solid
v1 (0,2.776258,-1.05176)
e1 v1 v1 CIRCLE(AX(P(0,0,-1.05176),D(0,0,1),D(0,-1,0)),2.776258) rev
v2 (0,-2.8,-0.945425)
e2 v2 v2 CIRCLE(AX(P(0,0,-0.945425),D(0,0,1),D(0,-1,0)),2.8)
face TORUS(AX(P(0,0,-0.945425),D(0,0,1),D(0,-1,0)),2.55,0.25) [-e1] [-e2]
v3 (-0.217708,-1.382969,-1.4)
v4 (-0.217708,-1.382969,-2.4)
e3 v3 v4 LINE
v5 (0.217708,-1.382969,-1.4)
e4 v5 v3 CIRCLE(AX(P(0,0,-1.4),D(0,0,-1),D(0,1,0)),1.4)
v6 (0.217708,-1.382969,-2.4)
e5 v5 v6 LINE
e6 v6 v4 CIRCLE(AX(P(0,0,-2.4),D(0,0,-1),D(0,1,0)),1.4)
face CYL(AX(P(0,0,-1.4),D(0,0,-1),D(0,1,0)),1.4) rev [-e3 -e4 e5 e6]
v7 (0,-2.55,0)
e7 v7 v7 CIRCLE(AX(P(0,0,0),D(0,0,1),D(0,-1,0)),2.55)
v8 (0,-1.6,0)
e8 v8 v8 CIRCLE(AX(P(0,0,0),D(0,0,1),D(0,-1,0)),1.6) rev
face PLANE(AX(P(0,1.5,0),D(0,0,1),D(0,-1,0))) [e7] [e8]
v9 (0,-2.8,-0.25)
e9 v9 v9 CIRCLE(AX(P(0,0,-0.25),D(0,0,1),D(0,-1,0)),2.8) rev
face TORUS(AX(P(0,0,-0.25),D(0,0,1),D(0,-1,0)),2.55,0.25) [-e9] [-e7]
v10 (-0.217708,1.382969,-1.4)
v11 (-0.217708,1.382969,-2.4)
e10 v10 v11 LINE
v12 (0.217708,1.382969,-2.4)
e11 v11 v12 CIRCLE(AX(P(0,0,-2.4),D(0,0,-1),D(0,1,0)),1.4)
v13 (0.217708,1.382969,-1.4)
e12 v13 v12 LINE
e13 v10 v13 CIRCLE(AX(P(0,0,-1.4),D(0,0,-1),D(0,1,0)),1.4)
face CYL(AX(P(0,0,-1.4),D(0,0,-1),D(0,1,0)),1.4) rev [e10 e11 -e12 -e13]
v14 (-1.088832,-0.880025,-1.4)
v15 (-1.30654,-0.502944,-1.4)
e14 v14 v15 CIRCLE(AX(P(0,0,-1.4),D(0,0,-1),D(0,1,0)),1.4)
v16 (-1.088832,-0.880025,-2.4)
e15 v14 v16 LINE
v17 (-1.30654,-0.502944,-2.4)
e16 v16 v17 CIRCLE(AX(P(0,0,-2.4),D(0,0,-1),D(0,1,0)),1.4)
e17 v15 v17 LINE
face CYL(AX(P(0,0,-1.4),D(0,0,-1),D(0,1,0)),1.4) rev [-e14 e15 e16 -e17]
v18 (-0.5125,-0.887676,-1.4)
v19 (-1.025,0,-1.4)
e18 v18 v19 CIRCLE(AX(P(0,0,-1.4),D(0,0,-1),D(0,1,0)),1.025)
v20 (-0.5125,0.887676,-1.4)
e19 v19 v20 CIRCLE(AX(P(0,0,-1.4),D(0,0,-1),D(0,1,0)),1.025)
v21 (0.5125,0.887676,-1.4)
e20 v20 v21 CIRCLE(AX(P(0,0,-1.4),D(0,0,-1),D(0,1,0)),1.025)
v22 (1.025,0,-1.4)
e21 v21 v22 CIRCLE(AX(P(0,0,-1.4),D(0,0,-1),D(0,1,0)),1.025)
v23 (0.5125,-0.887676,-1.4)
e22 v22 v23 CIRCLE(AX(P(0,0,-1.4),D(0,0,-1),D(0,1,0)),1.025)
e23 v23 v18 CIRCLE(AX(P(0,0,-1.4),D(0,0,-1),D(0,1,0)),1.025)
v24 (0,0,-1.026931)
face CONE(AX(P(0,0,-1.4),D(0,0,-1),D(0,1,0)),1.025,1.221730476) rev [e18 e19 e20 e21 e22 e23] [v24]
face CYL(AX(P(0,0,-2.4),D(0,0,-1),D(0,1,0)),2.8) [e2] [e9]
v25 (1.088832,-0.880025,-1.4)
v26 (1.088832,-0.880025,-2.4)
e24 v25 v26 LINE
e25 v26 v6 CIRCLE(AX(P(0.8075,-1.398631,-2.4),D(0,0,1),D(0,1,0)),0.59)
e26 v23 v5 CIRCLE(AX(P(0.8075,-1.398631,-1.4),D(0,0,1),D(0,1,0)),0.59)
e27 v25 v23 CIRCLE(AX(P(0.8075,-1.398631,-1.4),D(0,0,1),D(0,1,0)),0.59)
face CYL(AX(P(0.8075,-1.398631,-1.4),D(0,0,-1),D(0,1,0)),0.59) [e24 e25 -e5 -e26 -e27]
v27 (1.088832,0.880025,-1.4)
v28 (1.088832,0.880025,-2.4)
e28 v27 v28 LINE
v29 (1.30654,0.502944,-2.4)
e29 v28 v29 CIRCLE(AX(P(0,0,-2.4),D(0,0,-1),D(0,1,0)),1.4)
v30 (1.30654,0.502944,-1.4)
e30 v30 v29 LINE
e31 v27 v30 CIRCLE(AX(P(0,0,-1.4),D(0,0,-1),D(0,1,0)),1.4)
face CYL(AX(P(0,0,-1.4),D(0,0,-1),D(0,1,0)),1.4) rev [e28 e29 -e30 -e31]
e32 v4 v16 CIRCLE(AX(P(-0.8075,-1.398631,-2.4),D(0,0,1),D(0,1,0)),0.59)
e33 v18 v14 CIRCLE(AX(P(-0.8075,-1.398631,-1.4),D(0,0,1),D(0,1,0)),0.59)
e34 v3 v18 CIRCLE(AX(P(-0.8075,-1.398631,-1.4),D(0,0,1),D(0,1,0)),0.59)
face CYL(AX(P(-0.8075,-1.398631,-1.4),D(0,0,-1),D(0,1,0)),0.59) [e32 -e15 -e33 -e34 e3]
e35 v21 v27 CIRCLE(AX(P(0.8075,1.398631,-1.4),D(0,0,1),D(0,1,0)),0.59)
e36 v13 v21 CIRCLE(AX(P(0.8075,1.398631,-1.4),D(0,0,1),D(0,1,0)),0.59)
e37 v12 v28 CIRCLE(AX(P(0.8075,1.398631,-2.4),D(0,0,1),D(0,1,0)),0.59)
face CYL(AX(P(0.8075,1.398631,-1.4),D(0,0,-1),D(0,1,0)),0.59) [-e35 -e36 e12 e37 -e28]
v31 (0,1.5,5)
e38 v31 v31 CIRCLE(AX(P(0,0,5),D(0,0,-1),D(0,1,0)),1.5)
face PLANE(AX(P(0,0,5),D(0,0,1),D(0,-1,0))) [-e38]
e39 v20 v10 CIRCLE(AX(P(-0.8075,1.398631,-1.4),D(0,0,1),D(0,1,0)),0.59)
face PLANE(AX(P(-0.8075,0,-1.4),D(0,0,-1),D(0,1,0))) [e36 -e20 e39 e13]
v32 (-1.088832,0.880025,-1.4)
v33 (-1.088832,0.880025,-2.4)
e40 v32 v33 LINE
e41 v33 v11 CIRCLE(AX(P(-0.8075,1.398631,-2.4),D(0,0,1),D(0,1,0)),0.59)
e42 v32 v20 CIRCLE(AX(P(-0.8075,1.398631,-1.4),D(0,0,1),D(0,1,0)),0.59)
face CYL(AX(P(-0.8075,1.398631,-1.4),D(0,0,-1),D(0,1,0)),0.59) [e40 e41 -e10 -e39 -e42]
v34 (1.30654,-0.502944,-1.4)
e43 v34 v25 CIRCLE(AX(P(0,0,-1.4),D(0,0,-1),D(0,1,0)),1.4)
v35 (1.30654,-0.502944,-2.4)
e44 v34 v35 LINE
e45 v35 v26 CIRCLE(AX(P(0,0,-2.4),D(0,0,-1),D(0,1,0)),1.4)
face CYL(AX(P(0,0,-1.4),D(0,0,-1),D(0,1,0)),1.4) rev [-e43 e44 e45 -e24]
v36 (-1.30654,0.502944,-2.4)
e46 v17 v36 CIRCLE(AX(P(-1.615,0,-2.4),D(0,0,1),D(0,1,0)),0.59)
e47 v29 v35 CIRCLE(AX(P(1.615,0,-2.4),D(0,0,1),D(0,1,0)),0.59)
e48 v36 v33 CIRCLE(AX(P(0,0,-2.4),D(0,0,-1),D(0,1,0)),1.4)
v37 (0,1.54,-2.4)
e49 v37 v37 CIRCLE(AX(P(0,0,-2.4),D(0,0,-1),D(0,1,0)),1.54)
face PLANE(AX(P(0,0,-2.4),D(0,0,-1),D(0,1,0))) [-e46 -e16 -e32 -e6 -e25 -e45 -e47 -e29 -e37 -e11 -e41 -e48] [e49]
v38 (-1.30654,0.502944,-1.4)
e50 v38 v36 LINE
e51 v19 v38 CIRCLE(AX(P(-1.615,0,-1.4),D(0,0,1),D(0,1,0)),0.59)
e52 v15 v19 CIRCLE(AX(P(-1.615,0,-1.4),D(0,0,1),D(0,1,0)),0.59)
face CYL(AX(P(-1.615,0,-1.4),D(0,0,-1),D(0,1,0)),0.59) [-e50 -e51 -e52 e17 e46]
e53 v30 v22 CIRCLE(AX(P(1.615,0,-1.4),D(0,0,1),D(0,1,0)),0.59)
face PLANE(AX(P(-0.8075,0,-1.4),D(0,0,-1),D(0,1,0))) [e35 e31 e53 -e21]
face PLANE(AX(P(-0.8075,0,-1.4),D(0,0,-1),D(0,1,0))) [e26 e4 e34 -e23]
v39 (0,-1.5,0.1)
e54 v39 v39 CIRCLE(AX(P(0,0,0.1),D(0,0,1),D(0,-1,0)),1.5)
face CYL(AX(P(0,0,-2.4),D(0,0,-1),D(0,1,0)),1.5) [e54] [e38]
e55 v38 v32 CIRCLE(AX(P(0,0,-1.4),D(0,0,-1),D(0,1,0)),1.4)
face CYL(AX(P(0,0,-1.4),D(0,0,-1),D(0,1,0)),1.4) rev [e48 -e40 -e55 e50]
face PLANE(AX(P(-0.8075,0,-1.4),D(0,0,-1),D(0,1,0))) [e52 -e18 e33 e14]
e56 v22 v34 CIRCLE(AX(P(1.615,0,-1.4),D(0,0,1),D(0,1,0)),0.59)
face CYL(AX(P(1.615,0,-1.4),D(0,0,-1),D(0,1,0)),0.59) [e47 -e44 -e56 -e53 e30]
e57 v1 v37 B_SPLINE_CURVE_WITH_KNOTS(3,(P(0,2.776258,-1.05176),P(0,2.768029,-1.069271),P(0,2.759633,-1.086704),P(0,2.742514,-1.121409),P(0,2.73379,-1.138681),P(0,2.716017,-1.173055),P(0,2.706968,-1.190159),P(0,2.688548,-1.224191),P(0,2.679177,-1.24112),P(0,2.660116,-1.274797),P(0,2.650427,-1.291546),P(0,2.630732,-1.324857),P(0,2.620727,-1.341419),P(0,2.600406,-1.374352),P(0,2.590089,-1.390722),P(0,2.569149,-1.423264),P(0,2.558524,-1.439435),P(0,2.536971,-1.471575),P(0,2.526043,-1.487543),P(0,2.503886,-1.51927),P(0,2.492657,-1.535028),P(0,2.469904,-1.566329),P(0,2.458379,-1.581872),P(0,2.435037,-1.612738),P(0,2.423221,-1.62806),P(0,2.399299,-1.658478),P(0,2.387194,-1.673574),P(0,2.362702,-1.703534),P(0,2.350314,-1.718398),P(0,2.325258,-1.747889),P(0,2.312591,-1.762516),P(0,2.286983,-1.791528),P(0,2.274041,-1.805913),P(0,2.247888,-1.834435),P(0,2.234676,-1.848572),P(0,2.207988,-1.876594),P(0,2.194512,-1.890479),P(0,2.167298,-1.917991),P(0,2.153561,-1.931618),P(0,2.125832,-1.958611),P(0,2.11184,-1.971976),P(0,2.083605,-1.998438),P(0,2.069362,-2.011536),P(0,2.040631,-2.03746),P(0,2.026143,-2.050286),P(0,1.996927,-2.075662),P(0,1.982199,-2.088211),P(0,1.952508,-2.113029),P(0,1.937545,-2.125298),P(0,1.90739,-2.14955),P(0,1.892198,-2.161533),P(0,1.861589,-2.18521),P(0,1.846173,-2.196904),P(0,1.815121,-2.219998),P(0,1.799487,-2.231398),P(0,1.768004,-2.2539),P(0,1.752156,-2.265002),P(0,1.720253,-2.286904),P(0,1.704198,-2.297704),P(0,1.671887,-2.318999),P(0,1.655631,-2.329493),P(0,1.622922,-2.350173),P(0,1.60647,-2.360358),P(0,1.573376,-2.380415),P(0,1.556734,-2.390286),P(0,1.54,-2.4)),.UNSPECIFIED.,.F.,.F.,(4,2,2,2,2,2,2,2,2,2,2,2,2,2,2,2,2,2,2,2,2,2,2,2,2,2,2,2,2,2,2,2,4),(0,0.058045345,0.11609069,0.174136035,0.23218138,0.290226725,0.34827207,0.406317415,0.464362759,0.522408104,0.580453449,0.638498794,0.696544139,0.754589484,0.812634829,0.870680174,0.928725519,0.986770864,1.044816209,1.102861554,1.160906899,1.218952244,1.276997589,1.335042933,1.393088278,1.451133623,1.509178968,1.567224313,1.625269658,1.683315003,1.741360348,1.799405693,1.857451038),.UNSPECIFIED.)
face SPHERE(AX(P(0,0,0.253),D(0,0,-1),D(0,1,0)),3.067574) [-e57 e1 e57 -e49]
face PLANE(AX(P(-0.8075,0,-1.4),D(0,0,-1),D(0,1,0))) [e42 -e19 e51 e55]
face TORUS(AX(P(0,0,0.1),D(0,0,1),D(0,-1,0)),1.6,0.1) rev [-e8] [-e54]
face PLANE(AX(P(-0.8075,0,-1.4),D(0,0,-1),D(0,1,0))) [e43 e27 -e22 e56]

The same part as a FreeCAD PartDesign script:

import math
import FreeCAD as App
import Part
import Sketcher
Q = App.Units.Quantity


def edges_at(feature, points):
    """Names of the edges that pass closest to the given points."""
    edges = feature.Shape.Edges
    near = lambda p: min(range(len(edges)), key=lambda i: edges[i].distToShape(Part.Vertex(*p))[0])
    return sorted({f"Edge{near(p) + 1}" for p in points})

doc = App.newDocument("Part")
body = doc.addObject("PartDesign::Body", "Body")

# Sketch on YZ plane
sketch1 = body.newObject("Sketcher::SketchObject", "Sketch")
sketch1.AttachmentSupport = (doc.getObject("YZ_Plane"), [""])
sketch1.MapMode = "FlatFace"
sketch1.addGeometry(Part.LineSegment(App.Vector(1.5, 5, 0), App.Vector(0, 5, 0)), False)
sketch1.addGeometry(Part.LineSegment(App.Vector(0, 5, 0), App.Vector(0, -2.4, 0)), False)
sketch1.addGeometry(Part.LineSegment(App.Vector(0, -2.4, 0), App.Vector(1.5, -2.4, 0)), False)
sketch1.addGeometry(Part.ArcOfCircle(Part.Circle(App.Vector(0, 0.3, 0), App.Vector(0, 0, 1), 3.1), math.radians(-60), math.radians(-24)), False)
sketch1.addGeometry(Part.LineSegment(App.Vector(2.8, -1, 0), App.Vector(2.8, 0, 0)), False)
sketch1.addGeometry(Part.LineSegment(App.Vector(2.8, 0, 0), App.Vector(1.5, 0, 0)), False)
sketch1.addGeometry(Part.LineSegment(App.Vector(1.5, 0, 0), App.Vector(1.5, 5, 0)), False)
sketch1.addConstraint(Sketcher.Constraint("Coincident", 0, 2, 1, 1))
sketch1.addConstraint(Sketcher.Constraint("Coincident", 1, 2, 2, 1))
sketch1.addConstraint(Sketcher.Constraint("Coincident", 2, 2, 3, 1))
sketch1.addConstraint(Sketcher.Constraint("Coincident", 3, 2, 4, 1))
sketch1.addConstraint(Sketcher.Constraint("Coincident", 4, 2, 5, 1))
sketch1.addConstraint(Sketcher.Constraint("Coincident", 5, 2, 6, 1))
sketch1.addConstraint(Sketcher.Constraint("Coincident", 6, 2, 0, 1))
sketch1.addConstraint(Sketcher.Constraint("Horizontal", 0))
sketch1.addConstraint(Sketcher.Constraint("Vertical", 1))
sketch1.addConstraint(Sketcher.Constraint("Horizontal", 2))
sketch1.addConstraint(Sketcher.Constraint("Vertical", 4))
sketch1.addConstraint(Sketcher.Constraint("Horizontal", 5))
sketch1.addConstraint(Sketcher.Constraint("Vertical", 6))
sketch1.addConstraint(Sketcher.Constraint("PointOnObject", 3, 3, -2))
sketch1.addConstraint(Sketcher.Constraint("PointOnObject", 0, 2, -2))
sketch1.addConstraint(Sketcher.Constraint("PointOnObject", 4, 2, -1))
sketch1.addConstraint(Sketcher.Constraint("DistanceY", 4, 1, 4, 2, Q("1 mm")))
sketch1.addConstraint(Sketcher.Constraint("DistanceY", 6, 1, 6, 2, Q("5 mm")))
sketch1.addConstraint(Sketcher.Constraint("DistanceX", 0, 2, 0, 1, Q("1.5 mm")))
sketch1.addConstraint(Sketcher.Constraint("DistanceX", 5, 2, 5, 1, Q("1.3 mm")))
sketch1.addConstraint(Sketcher.Constraint("DistanceY", 1, 2, 1, 1, Q("7.4 mm")))
sketch1.addConstraint(Sketcher.Constraint("DistanceX", 2, 1, 2, 2, Q("1.54 mm")))
revolution = body.newObject("PartDesign::Revolution", "Revolution")
revolution.Profile = sketch1
revolution.ReferenceAxis = (sketch1, ["V_Axis"])
revolution.Angle = 360
doc.recompute()

fillet = body.newObject("PartDesign::Fillet", "Fillet")
fillet.Base = (revolution, edges_at(revolution, [(0, -1.5, 0)]))
fillet.Radius = 0.1
doc.recompute()

fillet2 = body.newObject("PartDesign::Fillet", "Fillet001")
fillet2.Base = (fillet, edges_at(fillet, [(0, -2.8, -1), (0, -2.8, 0)]))
fillet2.Radius = 0.25

# Sketch on XY plane
sketch2 = body.newObject("Sketcher::SketchObject", "Sketch001")
sketch2.AttachmentSupport = (doc.getObject("XY_Plane"), [""])
sketch2.MapMode = "FlatFace"
sketch2.AttachmentOffset = App.Placement(App.Vector(0, 0, -2.4), App.Rotation())
sketch2.addGeometry(Part.Circle(App.Vector(0, 0, 0), App.Vector(0, 0, 1), 1), False)
sketch2.addConstraint(Sketcher.Constraint("Coincident", 0, 3, -1, 1))
sketch2.addConstraint(Sketcher.Constraint("Diameter", 0, Q("2.05 mm")))
doc.recompute()
hole = body.newObject("PartDesign::Hole", "Hole")
hole.Profile = sketch2
hole.ThreadType = "None"
hole.Diameter = 2.05
hole.DepthType = "Dimension"
hole.Depth = 1
hole.DrillPoint = "Angled"
hole.DrillPointAngle = 140
hole.Reversed = True

# Sketch on XY plane
sketch3 = body.newObject("Sketcher::SketchObject", "Sketch002")
sketch3.AttachmentSupport = (doc.getObject("XY_Plane"), [""])
sketch3.MapMode = "FlatFace"
sketch3.AttachmentOffset = App.Placement(App.Vector(0, 0, -2.4), App.Rotation())
sketch3.addGeometry(Part.ArcOfCircle(Part.Circle(App.Vector(0, 0, 0), App.Vector(0, 0, 1), 1.4), math.radians(-158.95), math.radians(-141.05)), False)
sketch3.addGeometry(Part.ArcOfCircle(Part.Circle(App.Vector(-1.61, 0, 0), App.Vector(0, 0, 1), 0.59), math.radians(-58), math.radians(58)), False)
sketch3.addGeometry(Part.ArcOfCircle(Part.Circle(App.Vector(0, 0, 0), App.Vector(0, 0, 1), 1.4), math.radians(141.05), math.radians(158.95)), False)
sketch3.addGeometry(Part.ArcOfCircle(Part.Circle(App.Vector(-0.81, 1.4, 0), App.Vector(0, 0, 1), 0.59), math.radians(-118), math.radians(-2)), False)
sketch3.addGeometry(Part.ArcOfCircle(Part.Circle(App.Vector(0, 0, 0), App.Vector(0, 0, 1), 1.4), math.radians(81.05), math.radians(98.95)), False)
sketch3.addGeometry(Part.ArcOfCircle(Part.Circle(App.Vector(0.81, 1.4, 0), App.Vector(0, 0, 1), 0.59), math.radians(-178), math.radians(-62)), False)
sketch3.addGeometry(Part.ArcOfCircle(Part.Circle(App.Vector(0, 0, 0), App.Vector(0, 0, 1), 1.4), math.radians(21.05), math.radians(38.95)), False)
sketch3.addGeometry(Part.ArcOfCircle(Part.Circle(App.Vector(1.61, 0, 0), App.Vector(0, 0, 1), 0.59), math.radians(122), math.radians(238)), False)
sketch3.addGeometry(Part.ArcOfCircle(Part.Circle(App.Vector(0, 0, 0), App.Vector(0, 0, 1), 1.4), math.radians(-38.95), math.radians(-21.05)), False)
sketch3.addGeometry(Part.ArcOfCircle(Part.Circle(App.Vector(0.81, -1.4, 0), App.Vector(0, 0, 1), 0.59), math.radians(62), math.radians(178)), False)
sketch3.addGeometry(Part.ArcOfCircle(Part.Circle(App.Vector(0, 0, 0), App.Vector(0, 0, 1), 1.4), math.radians(-98.95), math.radians(-81.05)), False)
sketch3.addGeometry(Part.ArcOfCircle(Part.Circle(App.Vector(-0.81, -1.4, 0), App.Vector(0, 0, 1), 0.59), math.radians(2), math.radians(118)), False)
sketch3.addConstraint(Sketcher.Constraint("Coincident", 0, 1, 1, 1))
sketch3.addConstraint(Sketcher.Constraint("Coincident", 1, 2, 2, 2))
sketch3.addConstraint(Sketcher.Constraint("Coincident", 2, 1, 3, 1))
sketch3.addConstraint(Sketcher.Constraint("Coincident", 3, 2, 4, 2))
sketch3.addConstraint(Sketcher.Constraint("Coincident", 4, 1, 5, 1))
sketch3.addConstraint(Sketcher.Constraint("Coincident", 5, 2, 6, 2))
sketch3.addConstraint(Sketcher.Constraint("Coincident", 6, 1, 7, 1))
sketch3.addConstraint(Sketcher.Constraint("Coincident", 7, 2, 8, 2))
sketch3.addConstraint(Sketcher.Constraint("Coincident", 8, 1, 9, 1))
sketch3.addConstraint(Sketcher.Constraint("Coincident", 9, 2, 10, 2))
sketch3.addConstraint(Sketcher.Constraint("Coincident", 10, 1, 11, 1))
sketch3.addConstraint(Sketcher.Constraint("Coincident", 11, 2, 0, 2))
sketch3.addConstraint(Sketcher.Constraint("Coincident", 0, 3, -1, 1))
sketch3.addConstraint(Sketcher.Constraint("Coincident", 2, 3, -1, 1))
sketch3.addConstraint(Sketcher.Constraint("Coincident", 4, 3, -1, 1))
sketch3.addConstraint(Sketcher.Constraint("Coincident", 6, 3, -1, 1))
sketch3.addConstraint(Sketcher.Constraint("Coincident", 8, 3, -1, 1))
sketch3.addConstraint(Sketcher.Constraint("Coincident", 10, 3, -1, 1))
sketch3.addConstraint(Sketcher.Constraint("Equal", 0, 2))
sketch3.addConstraint(Sketcher.Constraint("Equal", 1, 3))
sketch3.addConstraint(Sketcher.Constraint("Equal", 2, 4))
sketch3.addConstraint(Sketcher.Constraint("Equal", 3, 5))
sketch3.addConstraint(Sketcher.Constraint("Equal", 4, 6))
sketch3.addConstraint(Sketcher.Constraint("Equal", 5, 7))
sketch3.addConstraint(Sketcher.Constraint("Equal", 6, 8))
sketch3.addConstraint(Sketcher.Constraint("Equal", 7, 9))
sketch3.addConstraint(Sketcher.Constraint("Equal", 8, 10))
sketch3.addConstraint(Sketcher.Constraint("Equal", 9, 11))
sketch3.addConstraint(Sketcher.Constraint("Symmetric", 1, 3, 7, 3, -1, 1))
sketch3.addConstraint(Sketcher.Constraint("Symmetric", 3, 3, 9, 3, -1, 1))
sketch3.addConstraint(Sketcher.Constraint("Symmetric", 5, 3, 11, 3, -1, 1))
sketch3.addConstraint(Sketcher.Constraint("Symmetric", 3, 3, 5, 3, -2))
sketch3.addConstraint(Sketcher.Constraint("PointOnObject", 1, 3, -1))
sketch3.addConstraint(Sketcher.Constraint("Radius", 0, Q("1.4 mm")))
sketch3.addConstraint(Sketcher.Constraint("Radius", 1, Q("0.59 mm")))
sketch3.addConstraint(Sketcher.Constraint("DistanceX", 1, 3, -1, 1, Q("1.615 mm")))
sketch3.addConstraint(Sketcher.Constraint("DistanceX", 3, 3, 5, 3, Q("1.615 mm")))
sketch3.addConstraint(Sketcher.Constraint("DistanceY", -1, 1, 3, 3, Q("1.398631 mm")))
pocket1 = body.newObject("PartDesign::Pocket", "Pocket")
pocket1.Profile = sketch3
pocket1.Length = 1
pocket1.Reversed = True

doc.recompute()
